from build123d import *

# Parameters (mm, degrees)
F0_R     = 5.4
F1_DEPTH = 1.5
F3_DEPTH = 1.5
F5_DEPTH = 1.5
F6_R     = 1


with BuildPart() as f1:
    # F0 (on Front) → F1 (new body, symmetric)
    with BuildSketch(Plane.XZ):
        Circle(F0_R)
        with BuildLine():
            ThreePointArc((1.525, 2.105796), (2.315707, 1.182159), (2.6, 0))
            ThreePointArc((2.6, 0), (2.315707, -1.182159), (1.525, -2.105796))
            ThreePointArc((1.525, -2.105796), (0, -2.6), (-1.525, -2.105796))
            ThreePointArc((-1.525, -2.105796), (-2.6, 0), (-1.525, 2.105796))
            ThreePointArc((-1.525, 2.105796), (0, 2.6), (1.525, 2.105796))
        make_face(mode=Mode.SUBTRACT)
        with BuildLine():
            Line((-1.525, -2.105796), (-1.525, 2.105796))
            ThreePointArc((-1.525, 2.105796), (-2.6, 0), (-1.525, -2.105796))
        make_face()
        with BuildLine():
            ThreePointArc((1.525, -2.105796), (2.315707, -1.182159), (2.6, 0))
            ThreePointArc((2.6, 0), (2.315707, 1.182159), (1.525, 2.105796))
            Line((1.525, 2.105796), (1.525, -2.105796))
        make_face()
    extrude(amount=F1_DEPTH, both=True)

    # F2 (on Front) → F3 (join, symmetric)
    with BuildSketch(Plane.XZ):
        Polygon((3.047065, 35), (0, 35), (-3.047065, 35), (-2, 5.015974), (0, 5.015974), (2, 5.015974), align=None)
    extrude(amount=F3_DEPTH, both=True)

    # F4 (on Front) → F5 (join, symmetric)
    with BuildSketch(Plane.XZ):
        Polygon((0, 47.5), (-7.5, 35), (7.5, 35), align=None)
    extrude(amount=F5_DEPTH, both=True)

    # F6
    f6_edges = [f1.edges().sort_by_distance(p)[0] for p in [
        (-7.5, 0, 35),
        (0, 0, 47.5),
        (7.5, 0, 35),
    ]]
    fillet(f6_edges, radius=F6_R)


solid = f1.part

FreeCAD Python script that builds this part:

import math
import FreeCAD as App
import Part
import Sketcher
from FreeCAD import Vector
Q = App.Units.Quantity


def edges_at(feature, points):
    """Names of the edges that pass closest to the given points."""
    edges = feature.Shape.Edges
    near = lambda p: min(range(len(edges)), key=lambda i: edges[i].distToShape(Part.Vertex(*p))[0])
    return sorted({f"Edge{near(p) + 1}" for p in points})

doc = App.newDocument("Part")
body = doc.addObject("PartDesign::Body", "Body")

# Sketch on XZ plane
sketch1 = body.newObject("Sketcher::SketchObject", "Sketch")
sketch1.AttachmentSupport = (doc.getObject("XZ_Plane"), [""])
sketch1.MapMode = "FlatFace"
sketch1.addGeometry(Part.Circle(Vector(0, 0, 0), Vector(0, 0, 1), 5.4), False)
sketch1.addGeometry(Part.ArcOfCircle(Part.Circle(Vector(0, -0.000002, 0), Vector(0, 0, 1), 2.600002), math.radians(54.088279), math.radians(125.911721)), False)
sketch1.addGeometry(Part.LineSegment(Vector(1.525, 2.105796, 0), Vector(1.525, -2.105796, 0)), False)
sketch1.addGeometry(Part.ArcOfCircle(Part.Circle(Vector(0, 0.000002, 0), Vector(0, 0, 1), 2.600002), math.radians(-125.911721), math.radians(-54.088279)), False)
sketch1.addGeometry(Part.LineSegment(Vector(-1.525, -2.105796, 0), Vector(-1.525, 2.105796, 0)), False)
sketch1.addConstraint(Sketcher.Constraint("Coincident", 1, 1, 2, 1))
sketch1.addConstraint(Sketcher.Constraint("Coincident", 2, 2, 3, 2))
sketch1.addConstraint(Sketcher.Constraint("Coincident", 3, 1, 4, 1))
sketch1.addConstraint(Sketcher.Constraint("Coincident", 4, 2, 1, 2))
sketch1.addConstraint(Sketcher.Constraint("Vertical", 2))
sketch1.addConstraint(Sketcher.Constraint("Vertical", 4))
sketch1.addConstraint(Sketcher.Constraint("Coincident", 0, 3, -1, 1))
sketch1.addConstraint(Sketcher.Constraint("Coincident", 1, 3, -1, 1))
sketch1.addConstraint(Sketcher.Constraint("Coincident", 3, 3, -1, 1))
sketch1.addConstraint(Sketcher.Constraint("Equal", 1, 3))
sketch1.addConstraint(Sketcher.Constraint("Horizontal", 2, 2, 3, 1))
sketch1.addConstraint(Sketcher.Constraint("Diameter", 0, 10.8))
sketch1.addConstraint(Sketcher.Constraint("Radius", 1, 2.600002))
sketch1.addConstraint(Sketcher.Constraint("DistanceX", 3, 1, 2, 2, 3.05))
pad1 = body.newObject("PartDesign::Pad", "Pad")
pad1.Profile = sketch1
pad1.Length = 3
pad1.Midplane = True

# Sketch on XZ plane
sketch2 = body.newObject("Sketcher::SketchObject", "Sketch001")
sketch2.AttachmentSupport = (doc.getObject("XZ_Plane"), [""])
sketch2.MapMode = "FlatFace"
sketch2.addGeometry(Part.LineSegment(Vector(3.047065, 35, 0), Vector(-3.047065, 35, 0)), False)
sketch2.addGeometry(Part.LineSegment(Vector(-3.047065, 35, 0), Vector(-2, 5.015974, 0)), False)
sketch2.addGeometry(Part.LineSegment(Vector(-2, 5.015974, 0), Vector(2, 5.015974, 0)), False)
sketch2.addGeometry(Part.LineSegment(Vector(2, 5.015974, 0), Vector(3.047065, 35, 0)), False)
sketch2.addConstraint(Sketcher.Constraint("Coincident", 0, 2, 1, 1))
sketch2.addConstraint(Sketcher.Constraint("Coincident", 1, 2, 2, 1))
sketch2.addConstraint(Sketcher.Constraint("Coincident", 2, 2, 3, 1))
sketch2.addConstraint(Sketcher.Constraint("Coincident", 3, 2, 0, 1))
sketch2.addConstraint(Sketcher.Constraint("Horizontal", 0))
sketch2.addConstraint(Sketcher.Constraint("Horizontal", 2))
sketch2.addConstraint(Sketcher.Constraint("Equal", 1, 3))
sketch2.addConstraint(Sketcher.Constraint("DistanceX", 2, 1, 2, 2, 4.0))
sketch2.addConstraint(Sketcher.Constraint("Angle", 1, Q("-88 deg")))
sketch2.addConstraint(Sketcher.Constraint("DistanceY", -1, 1, 0, 2, 35.0))
sketch2.addConstraint(Sketcher.Constraint("DistanceX", 1, 2, -1, 1, 2.0))
sketch2.addConstraint(Sketcher.Constraint("DistanceX", 0, 2, 0, 1, 6.09413))
pad2 = body.newObject("PartDesign::Pad", "Pad001")
pad2.Profile = sketch2
pad2.Length = 3
pad2.Midplane = True

# Sketch on XZ plane
sketch3 = body.newObject("Sketcher::SketchObject", "Sketch002")
sketch3.AttachmentSupport = (doc.getObject("XZ_Plane"), [""])
sketch3.MapMode = "FlatFace"
sketch3.addGeometry(Part.LineSegment(Vector(0, 47.5, 0), Vector(-7.5, 35, 0)), False)
sketch3.addGeometry(Part.LineSegment(Vector(-7.5, 35, 0), Vector(7.5, 35, 0)), False)
sketch3.addGeometry(Part.LineSegment(Vector(7.5, 35, 0), Vector(0, 47.5, 0)), False)
sketch3.addConstraint(Sketcher.Constraint("Coincident", 0, 2, 1, 1))
sketch3.addConstraint(Sketcher.Constraint("Coincident", 1, 2, 2, 1))
sketch3.addConstraint(Sketcher.Constraint("Coincident", 2, 2, 0, 1))
sketch3.addConstraint(Sketcher.Constraint("Horizontal", 1))
sketch3.addConstraint(Sketcher.Constraint("PointOnObject", 2, 2, -2))
sketch3.addConstraint(Sketcher.Constraint("Equal", 0, 2))
sketch3.addConstraint(Sketcher.Constraint("DistanceX", 1, 1, 1, 2, 15.0))
sketch3.addConstraint(Sketcher.Constraint("DistanceY", -1, 1, 0, 2, 35.0))
sketch3.addConstraint(Sketcher.Constraint("DistanceY", -1, 1, 2, 2, 47.5))
pad3 = body.newObject("PartDesign::Pad", "Pad002")
pad3.Profile = sketch3
pad3.Length = 3
pad3.Midplane = True
doc.recompute()

fillet = body.newObject("PartDesign::Fillet", "Fillet")
fillet.Base = (pad3, edges_at(pad3, [(-7.5, 0, 35), (0, 0, 47.5), (7.5, 0, 35)]))
fillet.Radius = 1

doc.recompute()
